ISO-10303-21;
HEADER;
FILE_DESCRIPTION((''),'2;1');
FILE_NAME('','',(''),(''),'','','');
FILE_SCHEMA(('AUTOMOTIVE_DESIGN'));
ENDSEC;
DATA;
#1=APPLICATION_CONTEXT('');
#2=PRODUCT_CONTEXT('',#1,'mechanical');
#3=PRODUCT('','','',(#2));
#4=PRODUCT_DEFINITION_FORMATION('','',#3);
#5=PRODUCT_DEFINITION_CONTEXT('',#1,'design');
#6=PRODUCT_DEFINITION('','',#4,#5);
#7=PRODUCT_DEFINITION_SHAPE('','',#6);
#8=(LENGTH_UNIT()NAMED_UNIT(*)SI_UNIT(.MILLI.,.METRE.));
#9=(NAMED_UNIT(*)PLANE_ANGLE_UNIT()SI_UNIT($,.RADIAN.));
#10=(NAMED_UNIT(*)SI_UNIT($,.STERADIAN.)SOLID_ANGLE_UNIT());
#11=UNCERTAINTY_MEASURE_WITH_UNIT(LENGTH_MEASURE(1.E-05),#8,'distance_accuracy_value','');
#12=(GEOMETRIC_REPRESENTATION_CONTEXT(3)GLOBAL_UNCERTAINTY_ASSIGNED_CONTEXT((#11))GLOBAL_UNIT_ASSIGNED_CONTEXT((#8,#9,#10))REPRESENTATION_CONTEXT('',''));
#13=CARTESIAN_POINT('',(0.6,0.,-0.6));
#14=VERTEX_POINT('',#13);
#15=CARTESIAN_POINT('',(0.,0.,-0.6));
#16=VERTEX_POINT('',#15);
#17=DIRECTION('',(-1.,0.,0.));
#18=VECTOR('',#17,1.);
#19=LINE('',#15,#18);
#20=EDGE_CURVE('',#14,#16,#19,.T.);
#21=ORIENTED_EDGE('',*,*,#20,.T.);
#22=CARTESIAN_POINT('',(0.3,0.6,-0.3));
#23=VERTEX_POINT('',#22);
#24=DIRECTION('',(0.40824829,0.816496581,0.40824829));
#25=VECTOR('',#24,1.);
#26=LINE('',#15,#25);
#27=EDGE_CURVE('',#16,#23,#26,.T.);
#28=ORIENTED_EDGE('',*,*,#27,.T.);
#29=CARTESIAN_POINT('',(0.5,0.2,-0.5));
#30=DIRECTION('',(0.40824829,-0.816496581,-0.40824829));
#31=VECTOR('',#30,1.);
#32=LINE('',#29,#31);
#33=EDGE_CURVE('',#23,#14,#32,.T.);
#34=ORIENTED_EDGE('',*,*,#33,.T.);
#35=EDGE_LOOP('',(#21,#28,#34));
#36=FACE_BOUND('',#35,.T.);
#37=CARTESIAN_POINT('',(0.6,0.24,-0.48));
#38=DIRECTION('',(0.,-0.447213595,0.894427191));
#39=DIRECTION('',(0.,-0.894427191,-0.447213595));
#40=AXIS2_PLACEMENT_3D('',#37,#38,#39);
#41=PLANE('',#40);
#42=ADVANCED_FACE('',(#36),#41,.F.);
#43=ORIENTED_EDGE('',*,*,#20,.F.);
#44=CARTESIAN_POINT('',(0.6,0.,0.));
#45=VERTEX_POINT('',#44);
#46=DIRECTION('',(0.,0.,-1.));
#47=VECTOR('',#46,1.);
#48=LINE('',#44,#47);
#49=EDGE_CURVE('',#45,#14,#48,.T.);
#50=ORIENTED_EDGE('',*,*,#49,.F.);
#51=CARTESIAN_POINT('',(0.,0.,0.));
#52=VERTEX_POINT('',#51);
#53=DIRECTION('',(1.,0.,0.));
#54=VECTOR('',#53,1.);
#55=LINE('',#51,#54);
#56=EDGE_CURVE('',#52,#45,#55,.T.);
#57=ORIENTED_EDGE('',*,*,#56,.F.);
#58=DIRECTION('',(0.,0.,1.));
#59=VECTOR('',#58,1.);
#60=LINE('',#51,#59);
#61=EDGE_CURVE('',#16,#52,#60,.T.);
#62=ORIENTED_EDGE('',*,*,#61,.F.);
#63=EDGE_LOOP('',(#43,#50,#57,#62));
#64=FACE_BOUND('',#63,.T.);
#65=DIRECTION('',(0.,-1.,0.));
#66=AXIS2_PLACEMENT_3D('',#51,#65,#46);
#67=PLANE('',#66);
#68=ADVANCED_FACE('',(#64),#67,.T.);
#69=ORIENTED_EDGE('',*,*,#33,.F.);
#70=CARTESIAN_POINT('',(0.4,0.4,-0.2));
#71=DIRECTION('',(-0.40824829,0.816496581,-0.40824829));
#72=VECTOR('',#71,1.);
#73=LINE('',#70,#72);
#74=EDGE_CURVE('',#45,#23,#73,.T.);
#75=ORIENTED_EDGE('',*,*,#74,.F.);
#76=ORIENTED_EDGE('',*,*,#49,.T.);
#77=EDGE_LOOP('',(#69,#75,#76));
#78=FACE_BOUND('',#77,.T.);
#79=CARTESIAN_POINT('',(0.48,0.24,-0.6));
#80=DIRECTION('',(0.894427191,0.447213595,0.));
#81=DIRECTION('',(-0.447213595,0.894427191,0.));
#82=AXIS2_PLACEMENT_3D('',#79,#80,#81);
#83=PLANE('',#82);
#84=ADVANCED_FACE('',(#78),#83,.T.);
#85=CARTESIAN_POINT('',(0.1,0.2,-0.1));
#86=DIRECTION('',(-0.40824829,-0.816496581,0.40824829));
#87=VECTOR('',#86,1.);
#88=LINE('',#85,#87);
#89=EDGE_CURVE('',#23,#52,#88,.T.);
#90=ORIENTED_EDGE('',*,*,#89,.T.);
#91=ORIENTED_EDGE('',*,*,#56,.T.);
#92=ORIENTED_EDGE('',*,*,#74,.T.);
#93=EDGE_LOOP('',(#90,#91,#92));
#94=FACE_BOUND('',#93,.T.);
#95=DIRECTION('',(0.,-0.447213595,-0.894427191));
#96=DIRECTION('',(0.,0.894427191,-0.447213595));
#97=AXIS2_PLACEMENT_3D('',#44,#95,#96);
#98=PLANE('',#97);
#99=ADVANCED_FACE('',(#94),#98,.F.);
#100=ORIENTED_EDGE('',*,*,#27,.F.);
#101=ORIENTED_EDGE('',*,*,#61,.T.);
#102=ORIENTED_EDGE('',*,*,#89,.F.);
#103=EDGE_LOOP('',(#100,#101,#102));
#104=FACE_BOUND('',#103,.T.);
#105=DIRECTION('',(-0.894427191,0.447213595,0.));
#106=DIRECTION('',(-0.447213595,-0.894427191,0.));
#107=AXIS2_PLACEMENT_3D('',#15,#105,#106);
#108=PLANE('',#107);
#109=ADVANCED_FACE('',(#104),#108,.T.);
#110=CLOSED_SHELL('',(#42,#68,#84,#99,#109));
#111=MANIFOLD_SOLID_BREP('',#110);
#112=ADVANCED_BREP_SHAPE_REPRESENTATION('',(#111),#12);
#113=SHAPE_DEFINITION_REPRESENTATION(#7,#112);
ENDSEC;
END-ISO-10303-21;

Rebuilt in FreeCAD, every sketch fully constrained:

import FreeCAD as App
import Part
import Sketcher

V = App.Vector
Q = App.Units.Quantity

doc = App.newDocument("Part")
params = doc.addObject("Spreadsheet::Sheet", "Params")
for row, (alias, value) in enumerate([
    ("sketch1_width", "0.6 mm"),
    ("pad1_length", "0.6 mm"),
    ("sketch2_width", "0.3 mm"),
    ("sketch2_height", "0.6 mm"),
    ("pocket1_length", "0.6 mm"),
    ("sketch3_width", "0.6 mm"),
    ("sketch3_height", "0.3 mm"),
    ("pocket2_length", "0.6 mm"),
], start=1):
    params.set(f"A{row}", alias)
    params.set(f"B{row}", "=" + value)
    params.setAlias(f"B{row}", alias)

body = doc.addObject("PartDesign::Body", "Body")

sketch1 = body.newObject("Sketcher::SketchObject", "Sketch")
sketch1.AttachmentSupport = (doc.getObject("XZ_Plane"), [""])
sketch1.MapMode = "FlatFace"
sketch1.addGeometry([
    Part.LineSegment(V(0, -0.6, 0), V(0, 0, 0)),
    Part.LineSegment(V(0, 0, 0), V(0.6, 0, 0)),
    Part.LineSegment(V(0.6, 0, 0), V(0.6, -0.6, 0)),
    Part.LineSegment(V(0.6, -0.6, 0), V(0, -0.6, 0)),
], False)
sketch1.addConstraint([
    Sketcher.Constraint("Coincident", 0, 2, 1, 1),
    Sketcher.Constraint("Coincident", 1, 2, 2, 1),
    Sketcher.Constraint("Coincident", 2, 2, 3, 1),
    Sketcher.Constraint("Coincident", 3, 2, 0, 1),
    Sketcher.Constraint("Vertical", 0),
    Sketcher.Constraint("Horizontal", 1),
    Sketcher.Constraint("Vertical", 2),
    Sketcher.Constraint("Horizontal", 3),
    Sketcher.Constraint("Coincident", 0, 2, -1, 1),
    Sketcher.Constraint("Equal", 3, 0),
    Sketcher.Constraint("DistanceX", 1, 1, 1, 2, Q("0.6 mm")),
])
sketch1.setExpression("Constraints[10]", "Params.sketch1_width")
pad1 = body.newObject("PartDesign::Pad", "Pad")
pad1.Profile = sketch1
pad1.setExpression("Length", "Params.pad1_length")
pad1.Reversed = True

sketch2 = body.newObject("Sketcher::SketchObject", "Sketch001")
sketch2.AttachmentSupport = (doc.getObject("XY_Plane"), [""])
sketch2.MapMode = "FlatFace"
sketch2.addGeometry([
    Part.LineSegment(V(0.3, 0.6, 0), V(0, 0.6, 0)),
    Part.LineSegment(V(0, 0.6, 0), V(0, 0, 0)),
    Part.LineSegment(V(0, 0, 0), V(0.3, 0.6, 0)),
    Part.LineSegment(V(0.6, 0.6, 0), V(0.3, 0.6, 0)),
    Part.LineSegment(V(0.3, 0.6, 0), V(0.6, 0, 0)),
    Part.LineSegment(V(0.6, 0, 0), V(0.6, 0.6, 0)),
], False)
sketch2.addConstraint([
    Sketcher.Constraint("Coincident", 0, 2, 1, 1),
    Sketcher.Constraint("Coincident", 1, 2, 2, 1),
    Sketcher.Constraint("Coincident", 2, 2, 0, 1),
    Sketcher.Constraint("Coincident", 3, 2, 4, 1),
    Sketcher.Constraint("Coincident", 4, 2, 5, 1),
    Sketcher.Constraint("Coincident", 5, 2, 3, 1),
    Sketcher.Constraint("Horizontal", 0),
    Sketcher.Constraint("Vertical", 1),
    Sketcher.Constraint("Horizontal", 3),
    Sketcher.Constraint("Vertical", 5),
    Sketcher.Constraint("Coincident", 1, 2, -1, 1),
    Sketcher.Constraint("Coincident", 3, 2, 2, 2),
    Sketcher.Constraint("PointOnObject", 4, 2, -1),
    Sketcher.Constraint("Equal", 0, 3),
    Sketcher.Constraint("DistanceX", 0, 2, 0, 1, Q("0.3 mm")),
    Sketcher.Constraint("DistanceY", 1, 2, 1, 1, Q("0.6 mm")),
])
sketch2.setExpression("Constraints[14]", "Params.sketch2_width")
sketch2.setExpression("Constraints[15]", "Params.sketch2_height")
pocket1 = body.newObject("PartDesign::Pocket", "Pocket")
pocket1.Profile = sketch2
pocket1.setExpression("Length", "Params.pocket1_length")

sketch3 = body.newObject("Sketcher::SketchObject", "Sketch002")
sketch3.AttachmentSupport = (doc.getObject("YZ_Plane"), [""])
sketch3.MapMode = "FlatFace"
sketch3.addGeometry([
    Part.LineSegment(V(0, -0.6, 0), V(0.6, -0.6, 0)),
    Part.LineSegment(V(0.6, -0.6, 0), V(0.6, -0.3, 0)),
    Part.LineSegment(V(0.6, -0.3, 0), V(0, -0.6, 0)),
    Part.LineSegment(V(0.6, -0.3, 0), V(0.6, 0, 0)),
    Part.LineSegment(V(0.6, 0, 0), V(0, 0, 0)),
    Part.LineSegment(V(0, 0, 0), V(0.6, -0.3, 0)),
], False)
sketch3.addConstraint([
    Sketcher.Constraint("Coincident", 0, 2, 1, 1),
    Sketcher.Constraint("Coincident", 1, 2, 2, 1),
    Sketcher.Constraint("Coincident", 2, 2, 0, 1),
    Sketcher.Constraint("Coincident", 3, 2, 4, 1),
    Sketcher.Constraint("Coincident", 4, 2, 5, 1),
    Sketcher.Constraint("Coincident", 5, 2, 3, 1),
    Sketcher.Constraint("Horizontal", 0),
    Sketcher.Constraint("Vertical", 1),
    Sketcher.Constraint("Vertical", 3),
    Sketcher.Constraint("Horizontal", 4),
    Sketcher.Constraint("Coincident", 4, 2, -1, 1),
    Sketcher.Constraint("Coincident", 5, 2, 1, 2),
    Sketcher.Constraint("PointOnObject", 2, 2, -2),
    Sketcher.Constraint("Equal", 1, 3),
    Sketcher.Constraint("DistanceX", 0, 1, 0, 2, Q("0.6 mm")),
    Sketcher.Constraint("DistanceY", 1, 1, 1, 2, Q("0.3 mm")),
])
sketch3.setExpression("Constraints[14]", "Params.sketch3_width")
sketch3.setExpression("Constraints[15]", "Params.sketch3_height")
pocket2 = body.newObject("PartDesign::Pocket", "Pocket001")
pocket2.Profile = sketch3
pocket2.setExpression("Length", "Params.pocket2_length")
pocket2.Reversed = True

doc.recompute()
